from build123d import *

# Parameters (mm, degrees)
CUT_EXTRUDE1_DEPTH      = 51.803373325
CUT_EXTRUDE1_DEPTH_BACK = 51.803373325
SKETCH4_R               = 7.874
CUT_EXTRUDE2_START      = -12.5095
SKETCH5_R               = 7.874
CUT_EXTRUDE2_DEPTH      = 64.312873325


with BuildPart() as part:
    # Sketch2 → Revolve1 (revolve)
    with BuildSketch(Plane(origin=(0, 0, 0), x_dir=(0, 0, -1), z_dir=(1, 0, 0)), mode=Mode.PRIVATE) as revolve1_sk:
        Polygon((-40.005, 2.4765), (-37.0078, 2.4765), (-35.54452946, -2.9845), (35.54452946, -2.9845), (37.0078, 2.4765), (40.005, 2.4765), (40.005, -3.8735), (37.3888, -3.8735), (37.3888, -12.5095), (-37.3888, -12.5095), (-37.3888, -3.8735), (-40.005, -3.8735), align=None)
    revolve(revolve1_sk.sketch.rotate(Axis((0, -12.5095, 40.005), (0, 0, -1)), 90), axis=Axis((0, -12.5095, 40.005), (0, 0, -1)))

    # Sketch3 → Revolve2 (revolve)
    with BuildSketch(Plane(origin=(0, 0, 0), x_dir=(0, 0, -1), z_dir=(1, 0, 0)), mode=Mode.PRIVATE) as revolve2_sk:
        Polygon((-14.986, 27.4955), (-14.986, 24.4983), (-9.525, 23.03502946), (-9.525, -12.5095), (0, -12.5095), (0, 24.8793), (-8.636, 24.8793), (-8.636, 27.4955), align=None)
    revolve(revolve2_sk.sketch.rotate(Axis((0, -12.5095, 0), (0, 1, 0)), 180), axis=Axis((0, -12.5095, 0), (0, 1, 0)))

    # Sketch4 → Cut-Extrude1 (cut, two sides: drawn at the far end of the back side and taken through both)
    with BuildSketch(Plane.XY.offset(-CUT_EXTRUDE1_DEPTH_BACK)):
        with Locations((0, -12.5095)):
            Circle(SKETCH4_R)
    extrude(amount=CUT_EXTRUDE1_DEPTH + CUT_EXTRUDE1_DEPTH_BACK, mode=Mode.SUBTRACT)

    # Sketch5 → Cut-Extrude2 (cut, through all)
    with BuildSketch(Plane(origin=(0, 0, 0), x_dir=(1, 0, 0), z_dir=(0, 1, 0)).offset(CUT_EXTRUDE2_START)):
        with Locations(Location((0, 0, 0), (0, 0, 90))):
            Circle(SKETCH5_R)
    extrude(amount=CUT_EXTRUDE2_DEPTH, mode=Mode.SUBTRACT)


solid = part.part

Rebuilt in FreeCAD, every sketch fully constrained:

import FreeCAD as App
import Part
import Sketcher
Q = App.Units.Quantity


def add_polygon(sketch, points):
    """Adds a closed chain of lines whose ends are joined by coincident constraints."""
    first, n = sketch.GeometryCount, len(points)
    for a, b in zip(points, points[1:] + points[:1]):
        sketch.addGeometry(Part.LineSegment(App.Vector(*a, 0), App.Vector(*b, 0)), False)
    for i in range(n):
        sketch.addConstraint(Sketcher.Constraint("Coincident", first + i, 2, first + (i + 1) % n, 1))

doc = App.newDocument("Part")
params = doc.addObject("Spreadsheet::Sheet", "Params")
for row, (alias, value) in enumerate([
    ("sketch1_width", "0.25 in"),
    ("sketch1_width2", "0.34 in"),
    ("sketch1_height", "3.15 in"),
    ("sketch1_height2", "0.118 in"),
    ("sketch1_height3", "0.103 in"),
    ("revolution_angle", "360 deg"),
    ("sketch2_height", "0.34 in"),
    ("sketch2_height2", "0.25 in"),
    ("sketch2_width", "0.118 in"),
    ("sketch2_width2", "1.472 in"),
    ("sketch2_width3", "0.103 in"),
    ("revolution2_angle", "360 deg"),
    ("sketch3_diameter", "0.62 in"),
    ("sketch4_diameter", "0.62 in"),
], start=1):
    params.set(f"A{row}", alias)
    params.set(f"B{row}", "=" + value)
    params.setAlias(f"B{row}", alias)

body = doc.addObject("PartDesign::Body", "Body")

# Sketch on YZ plane
sketch1 = doc.addObject("Sketcher::SketchObject", "Sketch")
body.addObject(sketch1)
sketch1.AttachmentSupport = (doc.YZ_Plane, [""])
sketch1.MapMode = "FlatFace"
add_polygon(sketch1, [(2.4765, 37.0078), (2.4765, 40.005), (-3.8735, 40.005), (-3.8735, 37.3888), (-12.5095, 37.3888), (-12.5095, -37.3888), (-3.8735, -37.3888), (-3.8735, -40.005), (2.4765, -40.005), (2.4765, -37.0078), (-2.9845, -35.544529), (-2.9845, 35.544529)])  # lines 0-11
sketch1.addGeometry(Part.LineSegment(App.Vector(-12.5095, 40.005, 0), App.Vector(-12.5095, -40.005, 0)), True)  # axis
sketch1.addConstraint(Sketcher.Constraint("Vertical", 0))
sketch1.addConstraint(Sketcher.Constraint("Horizontal", 1))
sketch1.addConstraint(Sketcher.Constraint("Vertical", 2))
sketch1.addConstraint(Sketcher.Constraint("Horizontal", 3))
sketch1.addConstraint(Sketcher.Constraint("Vertical", 4))
sketch1.addConstraint(Sketcher.Constraint("Horizontal", 5))
sketch1.addConstraint(Sketcher.Constraint("Vertical", 6))
sketch1.addConstraint(Sketcher.Constraint("Horizontal", 7))
sketch1.addConstraint(Sketcher.Constraint("Vertical", 8))
sketch1.addConstraint(Sketcher.Constraint("Vertical", 10))
sketch1.addConstraint(Sketcher.Constraint("Vertical", 12))
sketch1.addConstraint(Sketcher.Constraint("Symmetric", 2, 2, 5, 2, -1))
sketch1.addConstraint(Sketcher.Constraint("Symmetric", 0, 2, 7, 2, -1))
sketch1.addConstraint(Sketcher.Constraint("Horizontal", 1, 2, 12, 1))
sketch1.addConstraint(Sketcher.Constraint("Horizontal", 7, 2, 12, 2))
sketch1.addConstraint(Sketcher.Constraint("Vertical", 4, 2, 12, 1))
sketch1.addConstraint(Sketcher.Constraint("Equal", 0, 8))
sketch1.addConstraint(Sketcher.Constraint("Equal", 9, 11))
sketch1.addConstraint(Sketcher.Constraint("Angle", 9, Q("165 deg")))
sketch1.addConstraint(Sketcher.Constraint("DistanceX", 1, 2, 1, 1, Q("0.25 in")))
sketch1.addConstraint(Sketcher.Constraint("DistanceX", 3, 2, 3, 1, Q("0.34 in")))
sketch1.addConstraint(Sketcher.Constraint("DistanceY", 12, 2, 12, 1, Q("3.15 in")))
sketch1.addConstraint(Sketcher.Constraint("DistanceY", 0, 1, 0, 2, Q("0.118 in")))
sketch1.addConstraint(Sketcher.Constraint("DistanceY", 2, 2, 2, 1, Q("0.103 in")))
sketch1.addConstraint(Sketcher.Constraint("DistanceX", 5, 2, 9, 2, Q("0.035 in")))
sketch1.addConstraint(Sketcher.Constraint("DistanceX", -1, 1, 0, 2, Q("0.0975 in")))
sketch1.setExpression("Constraints[31]", "Params.sketch1_width")
sketch1.setExpression("Constraints[32]", "Params.sketch1_width2")
sketch1.setExpression("Constraints[33]", "Params.sketch1_height")
sketch1.setExpression("Constraints[34]", "Params.sketch1_height2")
sketch1.setExpression("Constraints[35]", "Params.sketch1_height3")
revolution = doc.addObject("PartDesign::Revolution", "Revolution")
body.addObject(revolution)
revolution.Profile = sketch1
revolution.ReferenceAxis = (sketch1, ["Axis0"])
revolution.setExpression("Angle", "Params.revolution_angle")

# Sketch on YZ plane
sketch2 = doc.addObject("Sketcher::SketchObject", "Sketch001")
body.addObject(sketch2)
sketch2.AttachmentSupport = (doc.YZ_Plane, [""])
sketch2.MapMode = "FlatFace"
add_polygon(sketch2, [(27.4955, 14.986), (24.4983, 14.986), (23.035029, 9.525), (-12.5095, 9.525), (-12.5095, 0), (24.8793, 0), (24.8793, 8.636), (27.4955, 8.636)])  # lines 0-7
sketch2.addConstraint(Sketcher.Constraint("Horizontal", 0))
sketch2.addConstraint(Sketcher.Constraint("Horizontal", 2))
sketch2.addConstraint(Sketcher.Constraint("Vertical", 3))
sketch2.addConstraint(Sketcher.Constraint("Horizontal", 4))
sketch2.addConstraint(Sketcher.Constraint("Vertical", 5))
sketch2.addConstraint(Sketcher.Constraint("Horizontal", 6))
sketch2.addConstraint(Sketcher.Constraint("Vertical", 7))
sketch2.addConstraint(Sketcher.Constraint("PointOnObject", 3, 2, -1))
sketch2.addConstraint(Sketcher.Constraint("Angle", 1, Q("-105 deg")))
sketch2.addConstraint(Sketcher.Constraint("DistanceY", 5, 1, 5, 2, Q("0.34 in")))
sketch2.addConstraint(Sketcher.Constraint("DistanceY", 7, 1, 7, 2, Q("0.25 in")))
sketch2.addConstraint(Sketcher.Constraint("DistanceX", 0, 2, 0, 1, Q("0.118 in")))
sketch2.addConstraint(Sketcher.Constraint("DistanceX", 4, 1, 4, 2, Q("1.472 in")))
sketch2.addConstraint(Sketcher.Constraint("DistanceX", 6, 1, 6, 2, Q("0.103 in")))
sketch2.addConstraint(Sketcher.Constraint("DistanceY", 3, 2, 3, 1, Q("0.375 in")))
sketch2.addConstraint(Sketcher.Constraint("DistanceX", -1, 1, 0, 2, Q("0.9645 in")))
sketch2.setExpression("Constraints[17]", "Params.sketch2_height")
sketch2.setExpression("Constraints[18]", "Params.sketch2_height2")
sketch2.setExpression("Constraints[19]", "Params.sketch2_width")
sketch2.setExpression("Constraints[20]", "Params.sketch2_width2")
sketch2.setExpression("Constraints[21]", "Params.sketch2_width3")
revolution2 = doc.addObject("PartDesign::Revolution", "Revolution001")
body.addObject(revolution2)
revolution2.Profile = sketch2
revolution2.ReferenceAxis = (sketch2, ["H_Axis"])
revolution2.setExpression("Angle", "Params.revolution2_angle")

# Sketch on XY plane
sketch3 = doc.addObject("Sketcher::SketchObject", "Sketch002")
body.addObject(sketch3)
sketch3.AttachmentSupport = (doc.XY_Plane, [""])
sketch3.MapMode = "FlatFace"
sketch3.addGeometry(Part.Circle(App.Vector(0, -12.5095, 0), App.Vector(0, 0, 1), 7.874), False)
sketch3.addConstraint(Sketcher.Constraint("PointOnObject", 0, 3, -2))
sketch3.addConstraint(Sketcher.Constraint("Diameter", 0, Q("0.62 in")))
sketch3.addConstraint(Sketcher.Constraint("DistanceY", 0, 3, -1, 1, Q("0.4925 in")))
sketch3.setExpression("Constraints[1]", "Params.sketch3_diameter")
pocket1 = doc.addObject("PartDesign::Pocket", "Pocket")
body.addObject(pocket1)
pocket1.Profile = sketch3
pocket1.Type = "ThroughAll"
pocket1.Midplane = True

# Sketch on XZ plane
sketch4 = doc.addObject("Sketcher::SketchObject", "Sketch003")
body.addObject(sketch4)
sketch4.AttachmentSupport = (doc.XZ_Plane, [""])
sketch4.MapMode = "FlatFace"
sketch4.AttachmentOffset = App.Placement(App.Vector(0, 0, 0.4925 * 25.4), App.Rotation())
sketch4.addGeometry(Part.Circle(App.Vector(0, 0, 0), App.Vector(0, 0, 1), 7.874), False)
sketch4.addConstraint(Sketcher.Constraint("Coincident", 0, 3, -1, 1))
sketch4.addConstraint(Sketcher.Constraint("Diameter", 0, Q("0.62 in")))
sketch4.setExpression("Constraints[1]", "Params.sketch4_diameter")
pocket2 = doc.addObject("PartDesign::Pocket", "Pocket001")
body.addObject(pocket2)
pocket2.Profile = sketch4
pocket2.Type = "ThroughAll"

doc.recompute()
